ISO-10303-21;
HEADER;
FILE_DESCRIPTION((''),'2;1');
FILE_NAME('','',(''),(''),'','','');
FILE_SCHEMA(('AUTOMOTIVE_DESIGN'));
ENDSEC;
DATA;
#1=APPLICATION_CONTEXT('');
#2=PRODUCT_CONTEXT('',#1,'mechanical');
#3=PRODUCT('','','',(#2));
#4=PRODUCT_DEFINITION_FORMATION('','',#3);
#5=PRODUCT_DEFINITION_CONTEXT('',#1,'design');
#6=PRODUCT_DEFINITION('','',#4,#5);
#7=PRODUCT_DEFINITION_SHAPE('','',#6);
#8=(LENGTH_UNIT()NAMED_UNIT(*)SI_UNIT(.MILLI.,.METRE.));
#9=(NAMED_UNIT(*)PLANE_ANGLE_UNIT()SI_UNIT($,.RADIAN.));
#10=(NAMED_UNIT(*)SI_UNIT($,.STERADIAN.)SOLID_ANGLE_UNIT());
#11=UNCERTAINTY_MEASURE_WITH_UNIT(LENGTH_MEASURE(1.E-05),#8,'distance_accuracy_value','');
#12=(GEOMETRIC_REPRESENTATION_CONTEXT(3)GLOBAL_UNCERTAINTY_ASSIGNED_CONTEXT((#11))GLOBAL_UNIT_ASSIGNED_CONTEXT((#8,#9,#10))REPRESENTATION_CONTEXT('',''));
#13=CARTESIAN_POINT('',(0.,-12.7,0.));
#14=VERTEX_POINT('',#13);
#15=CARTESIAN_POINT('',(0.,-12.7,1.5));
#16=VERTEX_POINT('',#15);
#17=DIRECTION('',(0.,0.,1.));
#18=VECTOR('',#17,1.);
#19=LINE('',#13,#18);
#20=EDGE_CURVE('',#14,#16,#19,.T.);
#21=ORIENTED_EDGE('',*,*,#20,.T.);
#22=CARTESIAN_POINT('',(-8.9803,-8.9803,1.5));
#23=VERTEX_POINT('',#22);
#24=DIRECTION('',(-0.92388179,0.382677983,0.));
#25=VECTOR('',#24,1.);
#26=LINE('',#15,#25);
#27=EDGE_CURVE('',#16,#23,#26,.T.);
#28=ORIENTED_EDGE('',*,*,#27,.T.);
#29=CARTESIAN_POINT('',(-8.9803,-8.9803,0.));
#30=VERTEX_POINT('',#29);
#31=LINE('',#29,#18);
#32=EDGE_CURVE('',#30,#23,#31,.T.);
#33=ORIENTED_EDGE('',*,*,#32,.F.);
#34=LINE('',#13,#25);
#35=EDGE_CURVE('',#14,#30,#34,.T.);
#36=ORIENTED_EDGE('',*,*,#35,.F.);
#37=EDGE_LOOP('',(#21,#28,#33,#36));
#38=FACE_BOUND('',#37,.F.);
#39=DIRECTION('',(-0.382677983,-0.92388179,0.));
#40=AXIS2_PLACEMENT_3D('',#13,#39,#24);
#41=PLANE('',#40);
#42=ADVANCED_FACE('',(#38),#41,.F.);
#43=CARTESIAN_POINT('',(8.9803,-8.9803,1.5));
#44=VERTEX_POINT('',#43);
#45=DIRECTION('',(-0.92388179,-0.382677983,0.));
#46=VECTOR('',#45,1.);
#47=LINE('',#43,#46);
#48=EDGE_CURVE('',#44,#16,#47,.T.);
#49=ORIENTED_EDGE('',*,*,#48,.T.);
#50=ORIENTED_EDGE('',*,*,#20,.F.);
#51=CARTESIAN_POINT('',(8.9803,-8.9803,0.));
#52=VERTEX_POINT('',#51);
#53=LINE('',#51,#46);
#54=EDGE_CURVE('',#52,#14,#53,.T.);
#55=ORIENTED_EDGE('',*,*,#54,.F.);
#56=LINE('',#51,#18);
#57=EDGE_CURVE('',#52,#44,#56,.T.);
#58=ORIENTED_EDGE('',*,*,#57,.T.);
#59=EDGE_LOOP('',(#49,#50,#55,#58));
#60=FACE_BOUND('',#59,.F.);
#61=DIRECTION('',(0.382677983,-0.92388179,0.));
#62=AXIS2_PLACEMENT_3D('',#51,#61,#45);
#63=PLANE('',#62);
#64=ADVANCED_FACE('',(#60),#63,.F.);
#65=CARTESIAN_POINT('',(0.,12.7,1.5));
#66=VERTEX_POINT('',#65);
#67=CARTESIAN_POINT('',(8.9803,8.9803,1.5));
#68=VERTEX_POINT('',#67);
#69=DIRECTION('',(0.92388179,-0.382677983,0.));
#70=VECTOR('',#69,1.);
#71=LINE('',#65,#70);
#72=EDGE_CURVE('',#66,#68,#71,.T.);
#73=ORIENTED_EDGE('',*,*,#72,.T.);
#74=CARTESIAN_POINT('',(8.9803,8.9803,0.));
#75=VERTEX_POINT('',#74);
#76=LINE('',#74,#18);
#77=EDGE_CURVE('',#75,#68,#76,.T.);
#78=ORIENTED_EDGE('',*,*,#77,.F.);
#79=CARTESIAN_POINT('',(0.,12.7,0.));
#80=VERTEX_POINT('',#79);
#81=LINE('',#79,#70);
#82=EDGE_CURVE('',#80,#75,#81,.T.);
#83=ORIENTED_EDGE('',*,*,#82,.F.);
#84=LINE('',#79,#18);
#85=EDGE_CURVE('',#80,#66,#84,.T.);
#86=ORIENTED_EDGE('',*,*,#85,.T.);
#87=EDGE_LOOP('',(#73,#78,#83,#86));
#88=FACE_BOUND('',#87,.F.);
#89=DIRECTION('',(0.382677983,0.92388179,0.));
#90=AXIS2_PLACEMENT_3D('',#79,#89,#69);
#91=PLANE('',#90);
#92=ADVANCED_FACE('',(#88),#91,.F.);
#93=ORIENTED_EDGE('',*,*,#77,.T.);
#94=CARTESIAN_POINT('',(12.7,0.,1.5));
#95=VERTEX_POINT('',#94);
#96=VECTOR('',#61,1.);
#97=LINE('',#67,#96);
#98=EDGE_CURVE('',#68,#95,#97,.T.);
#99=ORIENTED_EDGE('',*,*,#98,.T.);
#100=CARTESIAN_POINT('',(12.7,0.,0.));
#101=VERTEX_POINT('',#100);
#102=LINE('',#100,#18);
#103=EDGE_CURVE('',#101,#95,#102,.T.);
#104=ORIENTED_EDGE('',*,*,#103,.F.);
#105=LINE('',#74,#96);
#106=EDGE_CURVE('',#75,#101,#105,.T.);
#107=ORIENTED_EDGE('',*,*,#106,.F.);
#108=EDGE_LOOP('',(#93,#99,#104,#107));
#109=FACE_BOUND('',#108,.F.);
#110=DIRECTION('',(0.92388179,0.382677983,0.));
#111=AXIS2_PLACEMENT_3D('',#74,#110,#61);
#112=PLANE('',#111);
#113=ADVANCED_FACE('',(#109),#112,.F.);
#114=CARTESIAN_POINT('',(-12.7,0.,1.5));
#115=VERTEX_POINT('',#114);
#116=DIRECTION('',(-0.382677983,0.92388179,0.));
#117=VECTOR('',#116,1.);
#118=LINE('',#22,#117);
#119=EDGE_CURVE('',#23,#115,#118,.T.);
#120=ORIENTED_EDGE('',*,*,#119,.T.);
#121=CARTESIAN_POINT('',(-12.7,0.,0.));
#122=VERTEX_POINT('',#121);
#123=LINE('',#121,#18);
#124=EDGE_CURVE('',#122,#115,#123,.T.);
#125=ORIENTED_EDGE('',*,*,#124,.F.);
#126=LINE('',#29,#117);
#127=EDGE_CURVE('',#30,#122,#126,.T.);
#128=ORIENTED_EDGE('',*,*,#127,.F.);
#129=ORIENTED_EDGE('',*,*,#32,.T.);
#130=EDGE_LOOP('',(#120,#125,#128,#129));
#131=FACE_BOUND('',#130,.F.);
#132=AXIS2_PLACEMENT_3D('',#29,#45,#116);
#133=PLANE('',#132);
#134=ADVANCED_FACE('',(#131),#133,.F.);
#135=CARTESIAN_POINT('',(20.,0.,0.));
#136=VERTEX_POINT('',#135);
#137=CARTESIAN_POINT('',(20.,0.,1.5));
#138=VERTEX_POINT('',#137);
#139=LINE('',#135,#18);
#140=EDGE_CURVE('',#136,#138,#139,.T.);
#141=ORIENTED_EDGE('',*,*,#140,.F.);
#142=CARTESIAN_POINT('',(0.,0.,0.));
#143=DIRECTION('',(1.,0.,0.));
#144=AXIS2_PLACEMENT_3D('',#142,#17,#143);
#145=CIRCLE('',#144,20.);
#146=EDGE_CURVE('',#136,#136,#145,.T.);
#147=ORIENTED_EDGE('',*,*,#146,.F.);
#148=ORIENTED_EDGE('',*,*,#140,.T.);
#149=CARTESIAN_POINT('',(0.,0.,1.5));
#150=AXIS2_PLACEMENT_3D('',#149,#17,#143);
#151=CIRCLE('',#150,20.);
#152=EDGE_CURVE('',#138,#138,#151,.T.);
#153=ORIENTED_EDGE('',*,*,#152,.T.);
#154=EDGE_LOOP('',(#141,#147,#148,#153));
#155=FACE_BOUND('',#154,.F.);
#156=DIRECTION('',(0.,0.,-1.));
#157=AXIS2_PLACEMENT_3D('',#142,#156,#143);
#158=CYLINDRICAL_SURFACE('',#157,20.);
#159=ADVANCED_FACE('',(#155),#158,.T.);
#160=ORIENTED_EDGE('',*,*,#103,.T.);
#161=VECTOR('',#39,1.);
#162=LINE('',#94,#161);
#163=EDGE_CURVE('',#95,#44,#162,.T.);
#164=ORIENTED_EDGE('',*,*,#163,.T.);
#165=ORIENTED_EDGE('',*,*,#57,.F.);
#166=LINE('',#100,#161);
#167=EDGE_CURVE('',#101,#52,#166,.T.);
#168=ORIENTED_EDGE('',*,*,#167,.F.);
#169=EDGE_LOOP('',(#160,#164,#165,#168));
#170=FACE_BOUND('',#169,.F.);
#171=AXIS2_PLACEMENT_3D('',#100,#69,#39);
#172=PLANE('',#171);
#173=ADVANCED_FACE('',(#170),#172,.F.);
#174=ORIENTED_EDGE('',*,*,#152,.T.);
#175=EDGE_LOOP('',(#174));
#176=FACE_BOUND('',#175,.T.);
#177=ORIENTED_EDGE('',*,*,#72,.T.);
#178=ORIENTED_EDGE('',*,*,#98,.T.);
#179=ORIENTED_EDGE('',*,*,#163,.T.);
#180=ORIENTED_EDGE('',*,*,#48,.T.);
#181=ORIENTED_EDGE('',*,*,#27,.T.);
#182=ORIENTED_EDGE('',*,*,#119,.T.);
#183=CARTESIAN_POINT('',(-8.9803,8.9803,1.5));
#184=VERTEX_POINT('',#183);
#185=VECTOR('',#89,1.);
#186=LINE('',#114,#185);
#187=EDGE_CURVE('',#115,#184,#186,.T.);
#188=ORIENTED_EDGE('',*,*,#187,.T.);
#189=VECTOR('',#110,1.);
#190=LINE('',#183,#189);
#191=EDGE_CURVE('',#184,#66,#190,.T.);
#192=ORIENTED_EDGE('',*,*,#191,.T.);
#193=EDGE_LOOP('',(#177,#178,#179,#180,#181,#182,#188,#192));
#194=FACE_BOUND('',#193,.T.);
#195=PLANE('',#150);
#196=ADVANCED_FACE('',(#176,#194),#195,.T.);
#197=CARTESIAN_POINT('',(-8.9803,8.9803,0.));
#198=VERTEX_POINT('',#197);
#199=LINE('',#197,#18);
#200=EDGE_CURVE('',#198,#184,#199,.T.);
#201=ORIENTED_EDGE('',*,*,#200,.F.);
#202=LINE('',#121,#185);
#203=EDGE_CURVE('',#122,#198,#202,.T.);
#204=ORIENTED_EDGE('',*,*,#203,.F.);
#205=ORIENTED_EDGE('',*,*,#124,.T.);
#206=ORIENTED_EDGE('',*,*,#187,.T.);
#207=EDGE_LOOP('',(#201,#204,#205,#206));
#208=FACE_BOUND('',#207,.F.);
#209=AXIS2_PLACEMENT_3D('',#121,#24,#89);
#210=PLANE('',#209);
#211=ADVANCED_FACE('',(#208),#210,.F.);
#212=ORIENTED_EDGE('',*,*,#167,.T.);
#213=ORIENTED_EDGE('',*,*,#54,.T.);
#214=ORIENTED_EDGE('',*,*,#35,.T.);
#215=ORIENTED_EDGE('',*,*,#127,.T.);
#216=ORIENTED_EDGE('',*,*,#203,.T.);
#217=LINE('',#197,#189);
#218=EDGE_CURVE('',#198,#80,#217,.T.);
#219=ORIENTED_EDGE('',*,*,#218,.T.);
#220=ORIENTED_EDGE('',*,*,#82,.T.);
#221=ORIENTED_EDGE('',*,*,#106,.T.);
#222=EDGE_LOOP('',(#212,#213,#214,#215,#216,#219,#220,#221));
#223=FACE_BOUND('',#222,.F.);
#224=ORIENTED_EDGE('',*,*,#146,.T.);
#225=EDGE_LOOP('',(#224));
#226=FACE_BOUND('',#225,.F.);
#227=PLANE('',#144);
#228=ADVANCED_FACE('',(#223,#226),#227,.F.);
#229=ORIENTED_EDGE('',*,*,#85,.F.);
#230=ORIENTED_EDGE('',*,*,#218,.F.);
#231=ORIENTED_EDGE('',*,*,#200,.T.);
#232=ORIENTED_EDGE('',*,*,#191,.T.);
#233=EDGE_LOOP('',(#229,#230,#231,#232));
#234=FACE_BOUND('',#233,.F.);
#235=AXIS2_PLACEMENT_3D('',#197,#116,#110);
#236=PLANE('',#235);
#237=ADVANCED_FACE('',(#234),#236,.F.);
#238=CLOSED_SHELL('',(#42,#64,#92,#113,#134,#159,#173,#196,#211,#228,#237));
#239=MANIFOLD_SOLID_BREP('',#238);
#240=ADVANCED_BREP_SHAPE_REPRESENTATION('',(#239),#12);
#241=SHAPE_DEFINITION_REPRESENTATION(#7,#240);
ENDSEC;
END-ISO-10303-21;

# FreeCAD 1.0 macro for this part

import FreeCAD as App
import Part
import Sketcher
from FreeCAD import Vector
Q = App.Units.Quantity

doc = App.newDocument("Part")
body = doc.addObject("PartDesign::Body", "Body")

sketch1 = body.newObject("Sketcher::SketchObject", "Sketch")
sketch1.AttachmentSupport = (doc.getObject("XY_Plane"), [""])
sketch1.MapMode = "FlatFace"
sketch1.addGeometry(Part.Circle(Vector(0, 0, 0), Vector(0, 0, 1), 20), False)
sketch1.addGeometry(Part.LineSegment(Vector(-9, 9, 0), Vector(0, 13, 0)), False)
sketch1.addGeometry(Part.LineSegment(Vector(0, 13, 0), Vector(9, 9, 0)), False)
sketch1.addGeometry(Part.LineSegment(Vector(9, 9, 0), Vector(13, 0, 0)), False)
sketch1.addGeometry(Part.LineSegment(Vector(13, 0, 0), Vector(9, -9, 0)), False)
sketch1.addGeometry(Part.LineSegment(Vector(9, -9, 0), Vector(0, -13, 0)), False)
sketch1.addGeometry(Part.LineSegment(Vector(0, -13, 0), Vector(-9, -9, 0)), False)
sketch1.addGeometry(Part.LineSegment(Vector(-9, -9, 0), Vector(-13, 0, 0)), False)
sketch1.addGeometry(Part.LineSegment(Vector(-13, 0, 0), Vector(-9, 9, 0)), False)
sketch1.addConstraint(Sketcher.Constraint("Coincident", 1, 2, 2, 1))
sketch1.addConstraint(Sketcher.Constraint("Coincident", 2, 2, 3, 1))
sketch1.addConstraint(Sketcher.Constraint("Coincident", 3, 2, 4, 1))
sketch1.addConstraint(Sketcher.Constraint("Coincident", 4, 2, 5, 1))
sketch1.addConstraint(Sketcher.Constraint("Coincident", 5, 2, 6, 1))
sketch1.addConstraint(Sketcher.Constraint("Coincident", 6, 2, 7, 1))
sketch1.addConstraint(Sketcher.Constraint("Coincident", 7, 2, 8, 1))
sketch1.addConstraint(Sketcher.Constraint("Coincident", 8, 2, 1, 1))
sketch1.addConstraint(Sketcher.Constraint("Coincident", 0, 3, -1, 1))
sketch1.addConstraint(Sketcher.Constraint("Symmetric", 1, 2, 5, 2, -1, 1))
sketch1.addConstraint(Sketcher.Constraint("Symmetric", 2, 2, 6, 2, -1, 1))
sketch1.addConstraint(Sketcher.Constraint("Symmetric", 3, 2, 7, 2, -1, 1))
sketch1.addConstraint(Sketcher.Constraint("Symmetric", 4, 2, 8, 2, -1, 1))
sketch1.addConstraint(Sketcher.Constraint("Symmetric", 4, 2, 6, 2, -2))
sketch1.addConstraint(Sketcher.Constraint("PointOnObject", 1, 2, -2))
sketch1.addConstraint(Sketcher.Constraint("PointOnObject", 3, 2, -1))
sketch1.addConstraint(Sketcher.Constraint("Perpendicular", 1, 3))
sketch1.addConstraint(Sketcher.Constraint("Equal", 2, 3))
sketch1.addConstraint(Sketcher.Constraint("Diameter", 0, 40.0))
sketch1.addConstraint(Sketcher.Constraint("DistanceY", 5, 2, 1, 2, 25.4))
sketch1.addConstraint(Sketcher.Constraint("Angle", 1, Q("22.4997 deg")))
pad1 = body.newObject("PartDesign::Pad", "Pad")
pad1.Profile = sketch1
pad1.Length = 1.5

doc.recompute()
